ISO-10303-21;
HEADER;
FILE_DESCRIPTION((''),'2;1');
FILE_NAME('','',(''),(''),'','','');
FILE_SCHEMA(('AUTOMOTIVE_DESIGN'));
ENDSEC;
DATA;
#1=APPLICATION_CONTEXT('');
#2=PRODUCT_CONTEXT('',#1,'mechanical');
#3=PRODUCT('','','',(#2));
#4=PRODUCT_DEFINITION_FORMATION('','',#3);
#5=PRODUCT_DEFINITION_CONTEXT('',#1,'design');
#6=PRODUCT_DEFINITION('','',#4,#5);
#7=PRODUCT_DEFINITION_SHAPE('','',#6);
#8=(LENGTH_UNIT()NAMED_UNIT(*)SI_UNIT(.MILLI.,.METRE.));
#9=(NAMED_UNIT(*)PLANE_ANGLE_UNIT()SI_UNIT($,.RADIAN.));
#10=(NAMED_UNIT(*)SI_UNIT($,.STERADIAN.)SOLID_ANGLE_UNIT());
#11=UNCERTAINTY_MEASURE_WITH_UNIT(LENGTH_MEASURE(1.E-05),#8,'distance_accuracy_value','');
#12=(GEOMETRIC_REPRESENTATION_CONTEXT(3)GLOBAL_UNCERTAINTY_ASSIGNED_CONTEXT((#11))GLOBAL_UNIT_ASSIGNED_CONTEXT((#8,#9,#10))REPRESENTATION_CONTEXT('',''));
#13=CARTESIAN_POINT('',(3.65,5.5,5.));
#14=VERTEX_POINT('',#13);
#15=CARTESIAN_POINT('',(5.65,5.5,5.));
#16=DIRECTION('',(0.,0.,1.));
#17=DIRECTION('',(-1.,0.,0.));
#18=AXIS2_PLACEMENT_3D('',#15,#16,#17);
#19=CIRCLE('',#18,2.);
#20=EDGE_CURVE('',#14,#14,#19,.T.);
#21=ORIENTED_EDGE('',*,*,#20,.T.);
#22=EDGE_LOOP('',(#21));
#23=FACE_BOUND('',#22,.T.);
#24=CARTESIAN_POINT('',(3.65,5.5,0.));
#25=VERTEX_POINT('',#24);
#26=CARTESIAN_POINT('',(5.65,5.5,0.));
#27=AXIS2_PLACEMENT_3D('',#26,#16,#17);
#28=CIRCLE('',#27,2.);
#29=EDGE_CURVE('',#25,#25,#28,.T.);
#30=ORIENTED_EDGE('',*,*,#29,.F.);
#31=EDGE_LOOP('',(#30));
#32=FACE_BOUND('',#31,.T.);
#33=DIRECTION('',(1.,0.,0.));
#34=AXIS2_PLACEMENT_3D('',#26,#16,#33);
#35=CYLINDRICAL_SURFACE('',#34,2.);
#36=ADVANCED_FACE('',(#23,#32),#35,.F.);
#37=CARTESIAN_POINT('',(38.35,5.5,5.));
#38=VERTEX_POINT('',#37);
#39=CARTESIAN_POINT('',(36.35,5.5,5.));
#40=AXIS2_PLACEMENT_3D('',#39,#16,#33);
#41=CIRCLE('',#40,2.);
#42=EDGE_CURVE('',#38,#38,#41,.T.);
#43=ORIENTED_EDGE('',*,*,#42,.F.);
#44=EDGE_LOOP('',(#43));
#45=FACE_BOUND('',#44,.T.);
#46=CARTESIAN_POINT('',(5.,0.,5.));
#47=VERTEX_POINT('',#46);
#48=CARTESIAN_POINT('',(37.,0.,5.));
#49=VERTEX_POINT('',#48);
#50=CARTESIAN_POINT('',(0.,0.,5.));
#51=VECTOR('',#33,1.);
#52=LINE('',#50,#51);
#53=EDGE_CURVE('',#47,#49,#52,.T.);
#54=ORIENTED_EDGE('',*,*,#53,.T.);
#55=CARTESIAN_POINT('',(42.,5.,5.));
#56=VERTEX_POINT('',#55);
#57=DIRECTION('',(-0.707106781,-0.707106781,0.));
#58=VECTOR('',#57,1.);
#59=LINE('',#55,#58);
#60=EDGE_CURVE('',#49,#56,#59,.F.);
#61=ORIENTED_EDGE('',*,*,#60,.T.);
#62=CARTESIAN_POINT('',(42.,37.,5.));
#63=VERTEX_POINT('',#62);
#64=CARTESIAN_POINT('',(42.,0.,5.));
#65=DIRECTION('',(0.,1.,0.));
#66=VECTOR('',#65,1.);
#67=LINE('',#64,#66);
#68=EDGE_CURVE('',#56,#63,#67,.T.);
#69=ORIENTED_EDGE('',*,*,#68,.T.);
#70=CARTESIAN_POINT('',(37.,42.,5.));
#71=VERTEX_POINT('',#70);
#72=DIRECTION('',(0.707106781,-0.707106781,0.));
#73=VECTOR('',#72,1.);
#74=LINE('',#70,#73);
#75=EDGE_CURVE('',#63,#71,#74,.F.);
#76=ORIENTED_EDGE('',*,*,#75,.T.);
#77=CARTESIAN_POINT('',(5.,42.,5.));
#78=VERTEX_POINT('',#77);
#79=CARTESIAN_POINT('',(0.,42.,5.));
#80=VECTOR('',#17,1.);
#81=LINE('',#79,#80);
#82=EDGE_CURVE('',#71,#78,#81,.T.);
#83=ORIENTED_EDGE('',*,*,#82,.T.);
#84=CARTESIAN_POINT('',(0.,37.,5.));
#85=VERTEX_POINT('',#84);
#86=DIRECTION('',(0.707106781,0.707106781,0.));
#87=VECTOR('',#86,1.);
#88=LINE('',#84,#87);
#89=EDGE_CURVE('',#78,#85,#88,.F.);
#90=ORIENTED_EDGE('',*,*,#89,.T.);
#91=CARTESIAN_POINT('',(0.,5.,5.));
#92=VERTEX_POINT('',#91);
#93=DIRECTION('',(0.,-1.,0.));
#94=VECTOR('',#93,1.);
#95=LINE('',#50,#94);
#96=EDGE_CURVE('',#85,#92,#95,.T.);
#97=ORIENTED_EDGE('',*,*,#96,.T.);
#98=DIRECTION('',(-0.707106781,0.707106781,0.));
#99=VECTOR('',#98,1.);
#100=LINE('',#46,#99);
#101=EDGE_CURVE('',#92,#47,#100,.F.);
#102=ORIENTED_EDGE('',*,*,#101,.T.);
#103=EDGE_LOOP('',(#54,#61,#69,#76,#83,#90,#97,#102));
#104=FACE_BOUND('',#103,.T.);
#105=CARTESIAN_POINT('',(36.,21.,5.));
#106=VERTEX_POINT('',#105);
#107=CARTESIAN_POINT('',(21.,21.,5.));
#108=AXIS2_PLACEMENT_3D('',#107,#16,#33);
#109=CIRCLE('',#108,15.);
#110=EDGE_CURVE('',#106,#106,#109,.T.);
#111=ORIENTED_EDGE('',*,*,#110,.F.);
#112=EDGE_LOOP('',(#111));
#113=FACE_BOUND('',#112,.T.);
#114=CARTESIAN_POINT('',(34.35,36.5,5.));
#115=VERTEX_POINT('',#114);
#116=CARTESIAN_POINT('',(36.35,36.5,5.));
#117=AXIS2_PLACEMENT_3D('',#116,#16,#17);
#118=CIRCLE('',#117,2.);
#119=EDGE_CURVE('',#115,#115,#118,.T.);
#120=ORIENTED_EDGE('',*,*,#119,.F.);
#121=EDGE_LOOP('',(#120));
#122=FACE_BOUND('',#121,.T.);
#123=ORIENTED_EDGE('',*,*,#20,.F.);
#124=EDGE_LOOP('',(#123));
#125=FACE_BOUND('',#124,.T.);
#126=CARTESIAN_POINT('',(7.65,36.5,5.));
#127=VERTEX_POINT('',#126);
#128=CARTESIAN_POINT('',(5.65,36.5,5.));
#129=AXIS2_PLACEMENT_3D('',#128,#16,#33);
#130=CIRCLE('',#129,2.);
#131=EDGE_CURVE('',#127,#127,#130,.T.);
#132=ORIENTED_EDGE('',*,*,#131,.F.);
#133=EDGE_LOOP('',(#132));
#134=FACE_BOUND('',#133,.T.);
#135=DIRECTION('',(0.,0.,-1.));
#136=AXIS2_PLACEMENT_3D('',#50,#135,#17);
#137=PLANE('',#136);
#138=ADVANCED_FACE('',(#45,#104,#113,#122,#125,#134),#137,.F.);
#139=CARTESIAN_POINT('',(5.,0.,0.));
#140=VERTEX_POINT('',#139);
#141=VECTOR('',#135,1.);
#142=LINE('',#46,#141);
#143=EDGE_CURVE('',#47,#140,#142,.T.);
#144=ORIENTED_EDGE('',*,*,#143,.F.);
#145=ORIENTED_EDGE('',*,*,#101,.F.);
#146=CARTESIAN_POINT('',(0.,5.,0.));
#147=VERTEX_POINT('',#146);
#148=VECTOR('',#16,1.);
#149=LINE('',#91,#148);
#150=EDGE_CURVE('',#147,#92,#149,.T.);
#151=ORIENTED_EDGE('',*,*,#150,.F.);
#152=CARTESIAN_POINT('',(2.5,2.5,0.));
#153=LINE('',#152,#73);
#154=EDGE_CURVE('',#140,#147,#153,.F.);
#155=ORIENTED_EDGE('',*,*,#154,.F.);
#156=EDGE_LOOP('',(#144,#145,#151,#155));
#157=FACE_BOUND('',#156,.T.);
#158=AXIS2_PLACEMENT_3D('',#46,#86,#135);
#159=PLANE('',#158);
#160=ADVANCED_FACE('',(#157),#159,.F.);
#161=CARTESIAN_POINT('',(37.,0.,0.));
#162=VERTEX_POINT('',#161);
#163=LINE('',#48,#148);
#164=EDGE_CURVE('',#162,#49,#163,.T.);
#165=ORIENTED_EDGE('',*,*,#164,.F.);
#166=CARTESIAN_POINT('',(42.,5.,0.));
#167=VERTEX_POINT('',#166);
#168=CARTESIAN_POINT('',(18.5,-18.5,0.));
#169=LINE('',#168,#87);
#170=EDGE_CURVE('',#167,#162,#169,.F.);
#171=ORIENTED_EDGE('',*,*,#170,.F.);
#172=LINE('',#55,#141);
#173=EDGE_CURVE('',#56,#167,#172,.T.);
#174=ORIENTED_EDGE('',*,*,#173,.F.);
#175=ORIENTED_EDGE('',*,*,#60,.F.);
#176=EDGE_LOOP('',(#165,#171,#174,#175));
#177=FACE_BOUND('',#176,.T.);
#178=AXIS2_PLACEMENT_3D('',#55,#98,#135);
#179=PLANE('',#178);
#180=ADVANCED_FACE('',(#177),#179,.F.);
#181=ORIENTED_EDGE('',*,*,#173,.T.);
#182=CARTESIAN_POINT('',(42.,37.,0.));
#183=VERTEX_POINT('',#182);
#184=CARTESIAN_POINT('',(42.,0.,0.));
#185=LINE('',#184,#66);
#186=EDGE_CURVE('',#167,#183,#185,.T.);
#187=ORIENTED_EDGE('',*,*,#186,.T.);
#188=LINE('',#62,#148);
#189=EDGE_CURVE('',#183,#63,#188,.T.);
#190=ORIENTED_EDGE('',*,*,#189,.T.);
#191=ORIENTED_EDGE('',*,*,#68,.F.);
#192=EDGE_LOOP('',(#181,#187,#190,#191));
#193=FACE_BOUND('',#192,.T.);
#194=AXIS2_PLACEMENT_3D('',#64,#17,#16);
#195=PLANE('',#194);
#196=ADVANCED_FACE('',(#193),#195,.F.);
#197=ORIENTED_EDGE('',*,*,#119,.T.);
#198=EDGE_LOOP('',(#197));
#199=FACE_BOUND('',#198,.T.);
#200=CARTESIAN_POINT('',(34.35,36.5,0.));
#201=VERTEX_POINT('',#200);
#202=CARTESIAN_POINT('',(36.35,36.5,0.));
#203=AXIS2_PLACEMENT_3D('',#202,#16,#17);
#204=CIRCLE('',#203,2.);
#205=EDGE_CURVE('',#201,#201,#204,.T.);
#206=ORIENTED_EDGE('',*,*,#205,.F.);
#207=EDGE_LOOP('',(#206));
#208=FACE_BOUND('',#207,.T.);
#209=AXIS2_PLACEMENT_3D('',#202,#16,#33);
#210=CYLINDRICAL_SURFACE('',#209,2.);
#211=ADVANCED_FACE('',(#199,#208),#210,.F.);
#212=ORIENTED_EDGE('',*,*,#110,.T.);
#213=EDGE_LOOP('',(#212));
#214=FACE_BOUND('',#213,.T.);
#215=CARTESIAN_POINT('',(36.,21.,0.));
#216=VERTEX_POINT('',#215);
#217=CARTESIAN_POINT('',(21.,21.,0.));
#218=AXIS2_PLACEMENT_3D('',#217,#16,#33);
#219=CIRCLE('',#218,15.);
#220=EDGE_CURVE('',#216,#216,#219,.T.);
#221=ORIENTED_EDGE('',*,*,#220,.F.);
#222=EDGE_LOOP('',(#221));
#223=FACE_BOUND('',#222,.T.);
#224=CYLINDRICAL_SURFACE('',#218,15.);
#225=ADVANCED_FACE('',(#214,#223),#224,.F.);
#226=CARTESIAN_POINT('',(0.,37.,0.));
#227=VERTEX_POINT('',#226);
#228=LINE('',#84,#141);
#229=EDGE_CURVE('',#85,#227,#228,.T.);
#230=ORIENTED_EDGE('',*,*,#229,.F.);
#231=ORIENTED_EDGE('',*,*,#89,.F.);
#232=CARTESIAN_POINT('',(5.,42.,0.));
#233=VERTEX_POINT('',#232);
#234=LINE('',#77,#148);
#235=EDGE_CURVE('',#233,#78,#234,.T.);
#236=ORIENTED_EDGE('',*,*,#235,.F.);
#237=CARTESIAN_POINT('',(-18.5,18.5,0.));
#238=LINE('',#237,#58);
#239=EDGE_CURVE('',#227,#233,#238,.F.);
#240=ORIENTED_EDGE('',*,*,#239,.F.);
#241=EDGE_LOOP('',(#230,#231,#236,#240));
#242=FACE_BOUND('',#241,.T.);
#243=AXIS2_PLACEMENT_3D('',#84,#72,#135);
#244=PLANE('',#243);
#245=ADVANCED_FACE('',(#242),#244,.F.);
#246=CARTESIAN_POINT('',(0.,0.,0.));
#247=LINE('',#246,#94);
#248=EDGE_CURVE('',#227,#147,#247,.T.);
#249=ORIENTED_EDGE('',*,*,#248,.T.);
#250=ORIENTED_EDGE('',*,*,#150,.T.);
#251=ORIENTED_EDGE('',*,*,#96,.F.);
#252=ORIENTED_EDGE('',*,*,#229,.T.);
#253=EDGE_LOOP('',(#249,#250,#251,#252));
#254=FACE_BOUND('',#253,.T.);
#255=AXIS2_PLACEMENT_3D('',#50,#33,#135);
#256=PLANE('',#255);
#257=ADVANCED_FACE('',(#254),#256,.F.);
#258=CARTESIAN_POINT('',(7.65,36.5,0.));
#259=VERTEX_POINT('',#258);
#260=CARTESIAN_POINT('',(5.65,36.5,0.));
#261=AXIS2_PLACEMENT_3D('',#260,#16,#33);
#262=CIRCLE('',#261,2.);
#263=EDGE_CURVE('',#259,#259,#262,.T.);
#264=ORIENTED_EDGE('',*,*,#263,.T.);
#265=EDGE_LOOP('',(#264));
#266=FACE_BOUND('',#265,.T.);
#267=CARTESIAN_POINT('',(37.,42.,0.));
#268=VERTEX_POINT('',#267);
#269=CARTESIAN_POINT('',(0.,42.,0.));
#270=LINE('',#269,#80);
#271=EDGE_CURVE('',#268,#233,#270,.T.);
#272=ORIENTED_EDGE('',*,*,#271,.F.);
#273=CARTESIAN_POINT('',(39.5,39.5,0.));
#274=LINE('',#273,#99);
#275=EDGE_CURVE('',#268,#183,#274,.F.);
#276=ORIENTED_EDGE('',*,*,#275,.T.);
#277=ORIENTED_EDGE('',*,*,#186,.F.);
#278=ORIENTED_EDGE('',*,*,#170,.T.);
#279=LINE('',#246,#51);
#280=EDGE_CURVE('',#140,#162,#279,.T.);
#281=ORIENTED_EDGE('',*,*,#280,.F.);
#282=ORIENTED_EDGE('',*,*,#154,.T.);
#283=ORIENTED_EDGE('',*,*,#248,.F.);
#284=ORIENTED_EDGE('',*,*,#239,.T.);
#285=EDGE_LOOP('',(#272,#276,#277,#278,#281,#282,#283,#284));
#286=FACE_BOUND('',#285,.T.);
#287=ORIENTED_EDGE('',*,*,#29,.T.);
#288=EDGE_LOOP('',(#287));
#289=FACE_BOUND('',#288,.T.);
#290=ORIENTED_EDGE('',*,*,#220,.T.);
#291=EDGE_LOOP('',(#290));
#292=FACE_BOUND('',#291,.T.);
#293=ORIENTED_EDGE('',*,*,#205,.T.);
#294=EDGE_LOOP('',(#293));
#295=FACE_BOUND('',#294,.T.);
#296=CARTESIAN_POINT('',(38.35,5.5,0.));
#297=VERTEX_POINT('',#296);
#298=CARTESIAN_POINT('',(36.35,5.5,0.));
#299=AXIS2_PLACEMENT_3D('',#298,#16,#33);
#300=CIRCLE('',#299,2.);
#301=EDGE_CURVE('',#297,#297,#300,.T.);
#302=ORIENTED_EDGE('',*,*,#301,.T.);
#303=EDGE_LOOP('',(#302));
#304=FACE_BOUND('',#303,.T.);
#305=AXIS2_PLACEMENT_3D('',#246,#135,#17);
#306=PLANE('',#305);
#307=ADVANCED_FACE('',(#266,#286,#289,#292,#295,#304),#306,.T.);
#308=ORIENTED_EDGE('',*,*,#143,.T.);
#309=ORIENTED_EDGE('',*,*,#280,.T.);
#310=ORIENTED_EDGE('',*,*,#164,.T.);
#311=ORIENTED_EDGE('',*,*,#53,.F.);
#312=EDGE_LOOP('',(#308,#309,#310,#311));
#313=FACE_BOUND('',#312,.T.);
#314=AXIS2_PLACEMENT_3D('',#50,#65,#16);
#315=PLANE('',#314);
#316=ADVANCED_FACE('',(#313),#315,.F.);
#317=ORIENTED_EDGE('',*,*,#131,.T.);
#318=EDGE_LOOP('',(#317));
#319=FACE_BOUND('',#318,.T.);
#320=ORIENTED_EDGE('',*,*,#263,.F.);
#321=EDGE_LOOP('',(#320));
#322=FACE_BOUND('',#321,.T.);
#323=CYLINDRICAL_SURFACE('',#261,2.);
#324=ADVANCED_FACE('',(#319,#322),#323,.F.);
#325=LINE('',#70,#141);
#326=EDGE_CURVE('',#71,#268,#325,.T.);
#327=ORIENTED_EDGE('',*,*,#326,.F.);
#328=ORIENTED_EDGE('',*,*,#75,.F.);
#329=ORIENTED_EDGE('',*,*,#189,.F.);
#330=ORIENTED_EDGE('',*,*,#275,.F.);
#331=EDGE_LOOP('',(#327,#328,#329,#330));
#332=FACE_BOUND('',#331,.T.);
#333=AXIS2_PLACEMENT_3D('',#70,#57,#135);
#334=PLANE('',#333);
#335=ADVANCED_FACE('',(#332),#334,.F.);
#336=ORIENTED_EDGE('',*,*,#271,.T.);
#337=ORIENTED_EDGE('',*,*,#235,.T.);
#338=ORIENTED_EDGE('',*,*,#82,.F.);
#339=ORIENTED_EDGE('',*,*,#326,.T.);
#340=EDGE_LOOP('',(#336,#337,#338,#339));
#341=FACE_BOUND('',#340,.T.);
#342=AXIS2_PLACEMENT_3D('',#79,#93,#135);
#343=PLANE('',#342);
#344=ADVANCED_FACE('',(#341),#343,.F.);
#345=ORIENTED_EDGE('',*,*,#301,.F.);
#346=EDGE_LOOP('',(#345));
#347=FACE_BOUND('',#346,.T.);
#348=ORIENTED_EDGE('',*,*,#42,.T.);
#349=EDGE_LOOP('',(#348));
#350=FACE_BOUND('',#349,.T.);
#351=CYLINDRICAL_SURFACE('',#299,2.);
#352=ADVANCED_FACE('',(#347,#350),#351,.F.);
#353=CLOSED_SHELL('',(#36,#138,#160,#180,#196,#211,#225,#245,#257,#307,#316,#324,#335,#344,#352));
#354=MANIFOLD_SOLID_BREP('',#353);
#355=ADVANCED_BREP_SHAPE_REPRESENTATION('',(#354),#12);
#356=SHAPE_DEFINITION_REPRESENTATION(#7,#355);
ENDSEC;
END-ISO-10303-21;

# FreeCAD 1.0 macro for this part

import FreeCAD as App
import Part
import Sketcher

V = App.Vector


def edges_at(feature, points):
    """Names of the edges that pass closest to the given points."""
    edges = feature.Shape.Edges
    near = lambda p: min(range(len(edges)), key=lambda i: edges[i].distToShape(Part.Vertex(*p))[0])
    return sorted({f"Edge{near(p) + 1}" for p in points})


def add_polygon(sketch, points):
    """Adds a closed chain of lines whose ends are joined by coincident constraints."""
    first, n = sketch.GeometryCount, len(points)
    for a, b in zip(points, points[1:] + points[:1]):
        sketch.addGeometry(Part.LineSegment(App.Vector(*a, 0), App.Vector(*b, 0)), False)
    for i in range(n):
        sketch.addConstraint(Sketcher.Constraint("Coincident", first + i, 2, first + (i + 1) % n, 1))

doc = App.newDocument("Part")
body = doc.addObject("PartDesign::Body", "Body")

sketch1 = doc.addObject("Sketcher::SketchObject", "Sketch")
body.addObject(sketch1)
sketch1.AttachmentSupport = (doc.XY_Plane, [""])
sketch1.MapMode = "FlatFace"
add_polygon(sketch1, [(0, 42), (0, 0), (42, 0), (42, 42)])
sketch1.addConstraint([
    Sketcher.Constraint("Vertical", 0),
    Sketcher.Constraint("Horizontal", 1),
    Sketcher.Constraint("Vertical", 2),
    Sketcher.Constraint("Horizontal", 3),
    Sketcher.Constraint("Coincident", 0, 2, -1, 1),
    Sketcher.Constraint("Equal", 3, 0),
    Sketcher.Constraint("DistanceX", 1, 1, 1, 2, 42.0),
])
pad1 = doc.addObject("PartDesign::Pad", "Pad")
body.addObject(pad1)
pad1.Profile = sketch1
pad1.Length = 5

sketch2 = doc.addObject("Sketcher::SketchObject", "Sketch001")
body.addObject(sketch2)
sketch2.AttachmentSupport = (doc.XY_Plane, [""])
sketch2.MapMode = "FlatFace"
sketch2.AttachmentOffset = App.Placement(V(0, 0, 5), App.Rotation())
sketch2.addGeometry(Part.Circle(V(21, 21, 0), V(0, 0, 1), 15), False)
sketch2.addConstraint([
    Sketcher.Constraint("Diameter", 0, 30.0),
    Sketcher.Constraint("DistanceX", -1, 1, 0, 3, 21.0),
    Sketcher.Constraint("DistanceY", -1, 1, 0, 3, 21.0),
])
pocket1 = doc.addObject("PartDesign::Pocket", "Pocket")
body.addObject(pocket1)
pocket1.Profile = sketch2
pocket1.Type = "ThroughAll"

sketch3 = doc.addObject("Sketcher::SketchObject", "Sketch002")
body.addObject(sketch3)
sketch3.AttachmentSupport = (doc.XY_Plane, [""])
sketch3.MapMode = "FlatFace"
sketch3.AttachmentOffset = App.Placement(V(0, 0, 5), App.Rotation())
sketch3.addGeometry([
    Part.Circle(V(5.65, 36.5, 0), V(0, 0, 1), 2),
    Part.Circle(V(5.65, 5.5, 0), V(0, 0, 1), 2),
    Part.Circle(V(36.35, 5.5, 0), V(0, 0, 1), 2),
    Part.Circle(V(36.35, 36.5, 0), V(0, 0, 1), 2),
], False)
sketch3.addConstraint([
    Sketcher.Constraint("Equal", 0, 1),
    Sketcher.Constraint("Equal", 1, 2),
    Sketcher.Constraint("Equal", 2, 3),
    Sketcher.Constraint("Horizontal", 1, 3, 2, 3),
    Sketcher.Constraint("Horizontal", 0, 3, 3, 3),
    Sketcher.Constraint("Vertical", 0, 3, 1, 3),
    Sketcher.Constraint("Vertical", 2, 3, 3, 3),
    Sketcher.Constraint("Diameter", 0, 4.0),
    Sketcher.Constraint("DistanceY", 1, 3, 0, 3, 31.0),
    Sketcher.Constraint("DistanceY", -1, 1, 0, 3, 36.5),
    Sketcher.Constraint("DistanceX", 1, 3, 2, 3, 30.7),
    Sketcher.Constraint("DistanceX", -1, 1, 0, 3, 5.65),
])
pocket2 = doc.addObject("PartDesign::Pocket", "Pocket001")
body.addObject(pocket2)
pocket2.Profile = sketch3
pocket2.Length = 5
doc.recompute()

chamfer = doc.addObject("PartDesign::Chamfer", "Chamfer")
body.addObject(chamfer)
chamfer.Base = (pocket2, edges_at(pocket2, [
    (0, 42, 2.5),
    (42, 42, 2.5),
    (42, 0, 2.5),
    (0, 0, 2.5),
]))
chamfer.Size = 5

doc.recompute()
